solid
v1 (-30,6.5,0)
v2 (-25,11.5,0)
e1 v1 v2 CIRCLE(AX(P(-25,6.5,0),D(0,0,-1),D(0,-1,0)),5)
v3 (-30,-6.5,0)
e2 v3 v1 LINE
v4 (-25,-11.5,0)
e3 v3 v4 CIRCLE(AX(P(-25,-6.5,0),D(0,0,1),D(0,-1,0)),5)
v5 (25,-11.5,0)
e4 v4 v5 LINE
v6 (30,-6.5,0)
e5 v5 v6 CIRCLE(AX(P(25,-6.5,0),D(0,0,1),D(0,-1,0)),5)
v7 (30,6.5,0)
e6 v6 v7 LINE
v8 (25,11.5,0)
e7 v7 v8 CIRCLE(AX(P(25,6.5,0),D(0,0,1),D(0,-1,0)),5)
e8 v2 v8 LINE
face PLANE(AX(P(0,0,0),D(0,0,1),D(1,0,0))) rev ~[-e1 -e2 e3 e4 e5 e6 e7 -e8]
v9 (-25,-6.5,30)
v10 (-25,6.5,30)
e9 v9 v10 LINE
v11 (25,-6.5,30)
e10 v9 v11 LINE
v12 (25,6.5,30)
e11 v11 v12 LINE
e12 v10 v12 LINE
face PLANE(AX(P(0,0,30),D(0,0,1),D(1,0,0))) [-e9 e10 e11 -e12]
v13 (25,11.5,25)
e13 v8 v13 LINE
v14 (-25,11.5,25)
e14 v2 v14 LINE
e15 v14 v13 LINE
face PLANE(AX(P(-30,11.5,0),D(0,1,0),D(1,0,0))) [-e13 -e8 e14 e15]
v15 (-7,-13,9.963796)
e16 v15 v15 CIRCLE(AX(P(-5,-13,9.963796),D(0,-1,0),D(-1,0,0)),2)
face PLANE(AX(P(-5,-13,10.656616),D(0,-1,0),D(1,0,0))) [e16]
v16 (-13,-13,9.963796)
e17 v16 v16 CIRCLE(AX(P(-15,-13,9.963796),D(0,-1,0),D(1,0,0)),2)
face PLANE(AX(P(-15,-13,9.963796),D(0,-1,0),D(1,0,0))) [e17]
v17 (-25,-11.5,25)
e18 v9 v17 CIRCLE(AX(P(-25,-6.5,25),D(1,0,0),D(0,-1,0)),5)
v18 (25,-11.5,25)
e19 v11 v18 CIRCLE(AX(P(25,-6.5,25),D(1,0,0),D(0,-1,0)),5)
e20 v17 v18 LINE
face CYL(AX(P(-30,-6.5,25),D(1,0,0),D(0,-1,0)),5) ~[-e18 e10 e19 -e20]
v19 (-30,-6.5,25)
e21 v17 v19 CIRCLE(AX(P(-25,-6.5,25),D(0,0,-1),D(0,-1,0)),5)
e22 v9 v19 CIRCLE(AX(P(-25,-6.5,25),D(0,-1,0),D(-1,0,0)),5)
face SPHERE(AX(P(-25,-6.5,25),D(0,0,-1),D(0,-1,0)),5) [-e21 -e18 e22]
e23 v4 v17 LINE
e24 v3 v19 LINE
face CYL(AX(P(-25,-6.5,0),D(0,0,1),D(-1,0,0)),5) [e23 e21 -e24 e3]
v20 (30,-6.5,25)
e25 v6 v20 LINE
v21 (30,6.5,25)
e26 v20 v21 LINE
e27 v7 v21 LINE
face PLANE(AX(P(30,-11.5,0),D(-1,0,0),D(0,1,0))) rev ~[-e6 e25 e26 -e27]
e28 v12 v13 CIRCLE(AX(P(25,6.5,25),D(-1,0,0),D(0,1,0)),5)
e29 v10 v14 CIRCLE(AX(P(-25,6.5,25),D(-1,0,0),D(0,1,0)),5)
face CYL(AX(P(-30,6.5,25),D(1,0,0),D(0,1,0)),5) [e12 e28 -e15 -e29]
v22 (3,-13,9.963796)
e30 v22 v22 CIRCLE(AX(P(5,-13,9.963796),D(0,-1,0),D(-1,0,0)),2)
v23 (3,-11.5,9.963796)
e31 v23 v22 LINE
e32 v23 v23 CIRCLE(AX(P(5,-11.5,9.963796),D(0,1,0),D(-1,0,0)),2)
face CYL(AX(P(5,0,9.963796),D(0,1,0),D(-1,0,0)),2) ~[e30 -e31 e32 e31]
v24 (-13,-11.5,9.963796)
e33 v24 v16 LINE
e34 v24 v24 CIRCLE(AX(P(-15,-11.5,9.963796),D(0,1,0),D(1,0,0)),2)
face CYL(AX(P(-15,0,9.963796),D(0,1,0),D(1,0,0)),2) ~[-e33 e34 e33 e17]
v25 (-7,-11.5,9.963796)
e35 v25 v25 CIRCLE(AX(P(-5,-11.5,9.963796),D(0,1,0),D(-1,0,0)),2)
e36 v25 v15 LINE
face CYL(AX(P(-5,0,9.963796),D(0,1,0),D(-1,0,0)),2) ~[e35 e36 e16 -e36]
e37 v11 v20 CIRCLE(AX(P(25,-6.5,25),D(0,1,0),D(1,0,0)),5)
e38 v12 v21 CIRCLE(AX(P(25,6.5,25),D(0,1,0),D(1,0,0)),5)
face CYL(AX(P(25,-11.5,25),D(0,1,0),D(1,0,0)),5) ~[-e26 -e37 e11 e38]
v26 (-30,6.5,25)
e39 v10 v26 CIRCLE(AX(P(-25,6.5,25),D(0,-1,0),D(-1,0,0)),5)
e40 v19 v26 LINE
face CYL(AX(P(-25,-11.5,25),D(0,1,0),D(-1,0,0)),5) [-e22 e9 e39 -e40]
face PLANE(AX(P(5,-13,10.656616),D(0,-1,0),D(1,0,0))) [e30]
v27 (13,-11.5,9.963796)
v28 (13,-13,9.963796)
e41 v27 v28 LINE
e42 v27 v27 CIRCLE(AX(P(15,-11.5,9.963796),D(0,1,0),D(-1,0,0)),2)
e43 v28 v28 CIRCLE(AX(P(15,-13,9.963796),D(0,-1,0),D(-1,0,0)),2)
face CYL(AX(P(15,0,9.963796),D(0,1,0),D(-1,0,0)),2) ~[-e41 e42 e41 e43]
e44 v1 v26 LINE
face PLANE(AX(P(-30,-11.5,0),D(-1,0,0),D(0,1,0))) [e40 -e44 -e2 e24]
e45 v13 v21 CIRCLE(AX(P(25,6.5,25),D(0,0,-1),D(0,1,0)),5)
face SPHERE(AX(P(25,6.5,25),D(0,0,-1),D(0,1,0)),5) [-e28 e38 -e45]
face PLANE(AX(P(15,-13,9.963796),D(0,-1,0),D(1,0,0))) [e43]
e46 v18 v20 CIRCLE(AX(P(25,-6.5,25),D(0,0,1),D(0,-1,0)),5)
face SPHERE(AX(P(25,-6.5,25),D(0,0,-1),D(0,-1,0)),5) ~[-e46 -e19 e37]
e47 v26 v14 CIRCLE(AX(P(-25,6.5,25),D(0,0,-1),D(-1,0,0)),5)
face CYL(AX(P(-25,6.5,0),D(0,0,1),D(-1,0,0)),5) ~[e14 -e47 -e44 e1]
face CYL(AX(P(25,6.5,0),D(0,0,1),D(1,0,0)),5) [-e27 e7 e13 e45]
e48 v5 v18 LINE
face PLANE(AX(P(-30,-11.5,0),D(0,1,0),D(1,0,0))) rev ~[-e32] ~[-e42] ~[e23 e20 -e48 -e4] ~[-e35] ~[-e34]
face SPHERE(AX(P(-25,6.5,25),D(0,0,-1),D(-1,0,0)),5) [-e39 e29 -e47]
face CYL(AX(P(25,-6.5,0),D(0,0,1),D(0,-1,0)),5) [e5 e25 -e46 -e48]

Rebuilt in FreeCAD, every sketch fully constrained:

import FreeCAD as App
import Part
import Sketcher
from FreeCAD import Vector
Q = App.Units.Quantity


def edges_at(feature, points):
    """Names of the edges that pass closest to the given points."""
    edges = feature.Shape.Edges
    near = lambda p: min(range(len(edges)), key=lambda i: edges[i].distToShape(Part.Vertex(*p))[0])
    return sorted({f"Edge{near(p) + 1}" for p in points})

doc = App.newDocument("Part")
body = doc.addObject("PartDesign::Body", "Body")

sketch1 = body.newObject("Sketcher::SketchObject", "Sketch")
sketch1.AttachmentSupport = (doc.getObject("XY_Plane"), [""])
sketch1.MapMode = "FlatFace"
sketch1.addGeometry(Part.LineSegment(Vector(-30, 11.5, 0), Vector(-30, -11.5, 0)), False)
sketch1.addGeometry(Part.LineSegment(Vector(-30, -11.5, 0), Vector(30, -11.5, 0)), False)
sketch1.addGeometry(Part.LineSegment(Vector(30, -11.5, 0), Vector(30, 11.5, 0)), False)
sketch1.addGeometry(Part.LineSegment(Vector(30, 11.5, 0), Vector(-30, 11.5, 0)), False)
sketch1.addConstraint(Sketcher.Constraint("Coincident", 0, 2, 1, 1))
sketch1.addConstraint(Sketcher.Constraint("Coincident", 1, 2, 2, 1))
sketch1.addConstraint(Sketcher.Constraint("Coincident", 2, 2, 3, 1))
sketch1.addConstraint(Sketcher.Constraint("Coincident", 3, 2, 0, 1))
sketch1.addConstraint(Sketcher.Constraint("Vertical", 0))
sketch1.addConstraint(Sketcher.Constraint("Horizontal", 1))
sketch1.addConstraint(Sketcher.Constraint("Vertical", 2))
sketch1.addConstraint(Sketcher.Constraint("Horizontal", 3))
sketch1.addConstraint(Sketcher.Constraint("Symmetric", 0, 2, 2, 2, -1, 1))
sketch1.addConstraint(Sketcher.Constraint("DistanceX", 1, 1, 1, 2, Q("60 mm")))
sketch1.addConstraint(Sketcher.Constraint("DistanceY", 0, 2, 0, 1, Q("23 mm")))
pad1 = body.newObject("PartDesign::Pad", "Pad")
pad1.Profile = sketch1
pad1.Length = 30
doc.recompute()

fillet = body.newObject("PartDesign::Fillet", "Fillet")
fillet.Base = (pad1, edges_at(pad1, [
    (-30, 11.5, 15),
    (-30, -11.5, 15),
    (30, -11.5, 15),
    (30, 11.5, 15),
    (0, -11.5, 30),
    (-30, 0, 30),
    (0, 11.5, 30),
    (30, 0, 30),
]))
fillet.Radius = 5

sketch2 = body.newObject("Sketcher::SketchObject", "Sketch001")
sketch2.AttachmentSupport = (doc.getObject("XZ_Plane"), [""])
sketch2.MapMode = "FlatFace"
sketch2.addGeometry(Part.Circle(Vector(-15, 9.963796, 0), Vector(0, 0, 1), 2), False)
sketch2.addGeometry(Part.Circle(Vector(15, 9.963796, 0), Vector(0, 0, 1), 2), False)
sketch2.addGeometry(Part.Circle(Vector(5, 9.963796, 0), Vector(0, 0, 1), 2), False)
sketch2.addGeometry(Part.Circle(Vector(-5, 9.963796, 0), Vector(0, 0, 1), 2), False)
sketch2.addConstraint(Sketcher.Constraint("Equal", 0, 1))
sketch2.addConstraint(Sketcher.Constraint("Equal", 1, 2))
sketch2.addConstraint(Sketcher.Constraint("Equal", 2, 3))
sketch2.addConstraint(Sketcher.Constraint("Symmetric", 0, 3, 1, 3, -2))
sketch2.addConstraint(Sketcher.Constraint("Symmetric", 2, 3, 3, 3, -2))
sketch2.addConstraint(Sketcher.Constraint("Horizontal", 1, 3, 2, 3))
sketch2.addConstraint(Sketcher.Constraint("Diameter", 0, Q("4 mm")))
sketch2.addConstraint(Sketcher.Constraint("DistanceX", 0, 3, -1, 1, Q("15 mm")))
sketch2.addConstraint(Sketcher.Constraint("DistanceX", -1, 1, 2, 3, Q("5 mm")))
sketch2.addConstraint(Sketcher.Constraint("DistanceY", -1, 1, 0, 3, Q("9.963796 mm")))
pad2 = body.newObject("PartDesign::Pad", "Pad001")
pad2.Profile = sketch2
pad2.Length = 13

doc.recompute()
